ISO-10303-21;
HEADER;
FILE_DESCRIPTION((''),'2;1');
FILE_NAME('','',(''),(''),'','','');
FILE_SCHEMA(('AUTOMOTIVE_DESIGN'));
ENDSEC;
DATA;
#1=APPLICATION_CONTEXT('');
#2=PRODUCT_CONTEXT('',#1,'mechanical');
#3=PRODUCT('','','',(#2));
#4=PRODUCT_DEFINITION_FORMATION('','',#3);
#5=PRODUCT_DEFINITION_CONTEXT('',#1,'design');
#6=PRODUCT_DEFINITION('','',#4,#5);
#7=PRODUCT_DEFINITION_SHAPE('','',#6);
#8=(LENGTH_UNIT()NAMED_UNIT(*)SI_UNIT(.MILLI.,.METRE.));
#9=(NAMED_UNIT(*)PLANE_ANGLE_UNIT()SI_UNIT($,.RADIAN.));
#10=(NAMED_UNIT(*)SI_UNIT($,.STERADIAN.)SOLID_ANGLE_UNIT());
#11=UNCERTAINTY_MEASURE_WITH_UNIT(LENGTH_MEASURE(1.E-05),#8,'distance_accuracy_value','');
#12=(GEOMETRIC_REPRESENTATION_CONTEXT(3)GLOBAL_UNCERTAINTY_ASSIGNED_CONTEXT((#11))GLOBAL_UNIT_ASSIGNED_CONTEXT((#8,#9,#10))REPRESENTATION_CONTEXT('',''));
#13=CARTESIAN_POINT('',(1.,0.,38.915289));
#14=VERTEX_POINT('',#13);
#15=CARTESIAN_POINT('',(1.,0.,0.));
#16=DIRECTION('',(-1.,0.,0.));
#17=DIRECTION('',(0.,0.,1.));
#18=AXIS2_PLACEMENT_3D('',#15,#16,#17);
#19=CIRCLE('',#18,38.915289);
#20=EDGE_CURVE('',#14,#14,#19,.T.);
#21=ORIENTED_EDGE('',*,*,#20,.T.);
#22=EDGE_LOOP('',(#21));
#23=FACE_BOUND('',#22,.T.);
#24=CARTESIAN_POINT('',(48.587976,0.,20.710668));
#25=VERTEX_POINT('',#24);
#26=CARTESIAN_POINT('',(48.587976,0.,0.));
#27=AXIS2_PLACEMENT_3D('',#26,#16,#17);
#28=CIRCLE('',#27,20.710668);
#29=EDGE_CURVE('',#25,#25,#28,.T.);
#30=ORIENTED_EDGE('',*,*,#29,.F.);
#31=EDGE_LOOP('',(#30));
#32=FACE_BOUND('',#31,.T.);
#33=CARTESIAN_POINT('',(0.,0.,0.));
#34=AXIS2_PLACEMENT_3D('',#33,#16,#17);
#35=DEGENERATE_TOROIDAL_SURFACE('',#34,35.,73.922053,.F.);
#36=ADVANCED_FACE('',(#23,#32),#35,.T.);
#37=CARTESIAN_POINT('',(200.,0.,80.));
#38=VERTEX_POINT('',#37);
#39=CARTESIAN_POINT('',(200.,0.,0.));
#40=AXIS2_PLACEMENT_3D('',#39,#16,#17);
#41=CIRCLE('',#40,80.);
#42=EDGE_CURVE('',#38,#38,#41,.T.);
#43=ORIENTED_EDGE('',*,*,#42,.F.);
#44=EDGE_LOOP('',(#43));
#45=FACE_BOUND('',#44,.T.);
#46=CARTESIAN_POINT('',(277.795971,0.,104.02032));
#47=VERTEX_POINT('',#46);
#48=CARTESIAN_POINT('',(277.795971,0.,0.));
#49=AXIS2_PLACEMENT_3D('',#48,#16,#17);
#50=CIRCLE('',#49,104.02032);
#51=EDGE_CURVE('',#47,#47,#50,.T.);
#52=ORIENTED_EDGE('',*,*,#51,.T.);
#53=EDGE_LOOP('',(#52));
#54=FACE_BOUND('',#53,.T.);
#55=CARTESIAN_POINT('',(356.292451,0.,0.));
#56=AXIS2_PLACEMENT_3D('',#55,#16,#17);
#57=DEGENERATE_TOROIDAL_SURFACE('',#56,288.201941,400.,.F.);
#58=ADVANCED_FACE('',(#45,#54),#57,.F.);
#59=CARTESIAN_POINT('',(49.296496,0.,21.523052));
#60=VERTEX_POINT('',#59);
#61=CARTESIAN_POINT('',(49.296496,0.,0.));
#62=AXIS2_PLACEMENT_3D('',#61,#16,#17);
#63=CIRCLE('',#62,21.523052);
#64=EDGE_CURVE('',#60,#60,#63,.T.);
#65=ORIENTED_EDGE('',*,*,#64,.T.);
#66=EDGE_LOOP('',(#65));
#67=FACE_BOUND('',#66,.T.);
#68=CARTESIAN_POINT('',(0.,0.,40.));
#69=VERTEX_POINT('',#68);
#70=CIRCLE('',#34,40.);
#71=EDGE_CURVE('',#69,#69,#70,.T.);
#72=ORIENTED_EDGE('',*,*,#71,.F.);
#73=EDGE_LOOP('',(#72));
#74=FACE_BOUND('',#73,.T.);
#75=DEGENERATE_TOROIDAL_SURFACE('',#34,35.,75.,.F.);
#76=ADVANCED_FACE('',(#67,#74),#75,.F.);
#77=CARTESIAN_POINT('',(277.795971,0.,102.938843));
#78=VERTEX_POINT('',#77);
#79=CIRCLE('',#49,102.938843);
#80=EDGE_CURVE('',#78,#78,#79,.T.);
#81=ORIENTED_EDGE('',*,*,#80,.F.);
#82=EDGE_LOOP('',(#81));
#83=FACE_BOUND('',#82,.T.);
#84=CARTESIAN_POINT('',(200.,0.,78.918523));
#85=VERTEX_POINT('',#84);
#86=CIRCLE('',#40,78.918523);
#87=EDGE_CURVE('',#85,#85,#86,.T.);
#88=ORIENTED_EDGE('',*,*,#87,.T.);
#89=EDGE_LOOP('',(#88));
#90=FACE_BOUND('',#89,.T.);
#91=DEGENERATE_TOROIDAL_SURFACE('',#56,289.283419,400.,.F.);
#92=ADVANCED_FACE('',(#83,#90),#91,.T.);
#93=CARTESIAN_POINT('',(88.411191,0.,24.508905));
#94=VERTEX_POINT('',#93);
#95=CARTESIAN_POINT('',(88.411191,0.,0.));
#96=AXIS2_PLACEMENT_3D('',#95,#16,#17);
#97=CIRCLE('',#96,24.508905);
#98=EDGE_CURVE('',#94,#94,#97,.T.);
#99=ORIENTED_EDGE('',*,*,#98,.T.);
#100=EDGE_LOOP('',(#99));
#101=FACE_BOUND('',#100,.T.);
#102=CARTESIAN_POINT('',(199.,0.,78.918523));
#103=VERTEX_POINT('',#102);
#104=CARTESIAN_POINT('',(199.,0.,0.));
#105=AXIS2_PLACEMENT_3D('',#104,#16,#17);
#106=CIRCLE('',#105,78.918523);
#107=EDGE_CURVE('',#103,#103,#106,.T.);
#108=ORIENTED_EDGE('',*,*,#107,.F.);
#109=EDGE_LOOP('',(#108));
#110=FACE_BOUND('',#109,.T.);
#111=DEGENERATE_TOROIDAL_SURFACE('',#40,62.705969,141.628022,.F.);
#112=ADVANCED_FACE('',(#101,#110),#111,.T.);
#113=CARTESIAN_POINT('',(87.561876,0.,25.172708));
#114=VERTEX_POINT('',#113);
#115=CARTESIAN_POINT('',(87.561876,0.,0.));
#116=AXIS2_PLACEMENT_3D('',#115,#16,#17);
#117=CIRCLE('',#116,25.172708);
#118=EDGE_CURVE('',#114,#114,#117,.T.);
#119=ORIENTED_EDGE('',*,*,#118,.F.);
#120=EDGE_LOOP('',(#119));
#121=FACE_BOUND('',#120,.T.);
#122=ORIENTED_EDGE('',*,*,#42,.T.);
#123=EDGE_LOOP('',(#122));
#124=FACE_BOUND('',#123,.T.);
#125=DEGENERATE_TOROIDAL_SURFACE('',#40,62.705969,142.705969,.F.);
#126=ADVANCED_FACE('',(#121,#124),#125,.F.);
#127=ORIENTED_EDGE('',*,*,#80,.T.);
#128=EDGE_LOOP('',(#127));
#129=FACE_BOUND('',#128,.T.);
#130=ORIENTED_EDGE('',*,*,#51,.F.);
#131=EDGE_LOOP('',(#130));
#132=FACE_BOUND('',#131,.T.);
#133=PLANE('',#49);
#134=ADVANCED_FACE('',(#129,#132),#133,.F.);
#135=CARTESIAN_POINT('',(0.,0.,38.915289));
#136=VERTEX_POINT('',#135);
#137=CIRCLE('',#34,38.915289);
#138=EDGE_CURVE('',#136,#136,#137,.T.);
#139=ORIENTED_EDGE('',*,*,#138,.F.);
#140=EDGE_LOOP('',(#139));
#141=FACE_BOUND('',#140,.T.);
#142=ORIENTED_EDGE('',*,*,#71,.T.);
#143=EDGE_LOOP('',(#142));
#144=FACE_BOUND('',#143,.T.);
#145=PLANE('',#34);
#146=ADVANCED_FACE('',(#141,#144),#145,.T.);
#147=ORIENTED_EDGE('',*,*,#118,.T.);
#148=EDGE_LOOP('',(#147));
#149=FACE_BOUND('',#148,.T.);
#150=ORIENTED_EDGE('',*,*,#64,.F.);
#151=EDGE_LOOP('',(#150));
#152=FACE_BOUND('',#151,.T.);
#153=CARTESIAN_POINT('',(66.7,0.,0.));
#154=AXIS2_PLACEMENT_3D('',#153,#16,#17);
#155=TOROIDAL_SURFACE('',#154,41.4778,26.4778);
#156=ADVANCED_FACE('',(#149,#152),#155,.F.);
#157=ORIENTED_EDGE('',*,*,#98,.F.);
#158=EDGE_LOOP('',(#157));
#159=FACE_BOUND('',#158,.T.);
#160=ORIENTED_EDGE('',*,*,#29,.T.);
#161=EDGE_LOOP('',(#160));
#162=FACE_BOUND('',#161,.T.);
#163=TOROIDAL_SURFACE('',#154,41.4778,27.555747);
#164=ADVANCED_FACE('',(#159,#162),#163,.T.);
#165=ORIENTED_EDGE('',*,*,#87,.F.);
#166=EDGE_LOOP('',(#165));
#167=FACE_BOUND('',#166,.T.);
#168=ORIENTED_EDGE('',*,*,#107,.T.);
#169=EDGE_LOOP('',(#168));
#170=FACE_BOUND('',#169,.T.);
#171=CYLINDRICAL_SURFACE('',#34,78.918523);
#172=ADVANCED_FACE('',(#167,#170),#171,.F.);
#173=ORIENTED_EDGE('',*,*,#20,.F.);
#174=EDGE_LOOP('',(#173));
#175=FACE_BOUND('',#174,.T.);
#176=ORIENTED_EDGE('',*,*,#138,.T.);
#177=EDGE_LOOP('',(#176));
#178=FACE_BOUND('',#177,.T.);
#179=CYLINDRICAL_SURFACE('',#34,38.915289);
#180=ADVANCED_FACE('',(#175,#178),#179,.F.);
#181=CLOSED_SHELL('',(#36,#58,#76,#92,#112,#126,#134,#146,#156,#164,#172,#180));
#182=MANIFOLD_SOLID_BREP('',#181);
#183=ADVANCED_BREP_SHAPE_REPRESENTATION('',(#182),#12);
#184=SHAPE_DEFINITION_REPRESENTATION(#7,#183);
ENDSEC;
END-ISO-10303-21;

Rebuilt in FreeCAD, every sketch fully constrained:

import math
import FreeCAD as App
import Part
import Sketcher

V = App.Vector

doc = App.newDocument("Part")
body = doc.addObject("PartDesign::Body", "Body")

sketch1 = doc.addObject("Sketcher::SketchObject", "Sketch")
body.addObject(sketch1)
sketch1.AttachmentSupport = (doc.XY_Plane, [""])
sketch1.MapMode = "FlatFace"
sketch1.addGeometry(Part.LineSegment(V(199, 78.918523, 0), V(200, 78.918523, 0)), False)
sketch1.addGeometry(Part.ArcOfCircle(Part.Circle(V(356.292451, -289.283419, 0), V(0, 0, 1), 400), math.radians(101.31724), math.radians(113)), False)
sketch1.addGeometry(Part.LineSegment(V(277.795971, 102.938843, 0), V(277.795971, 104.02032, 0)), False)
sketch1.addGeometry(Part.ArcOfCircle(Part.Circle(V(356.292451, -288.201941, 0), V(0, 0, 1), 400), math.radians(101.31724), math.radians(113)), False)
sketch1.addGeometry(Part.ArcOfCircle(Part.Circle(V(200, -62.705969, 0), V(0, 0, 1), 142.705969), math.radians(90), math.radians(141.989754)), False)
sketch1.addGeometry(Part.ArcOfCircle(Part.Circle(V(66.7, 41.4778, 0), V(0, 0, 1), 26.4778), math.radians(-131.093262), math.radians(-38.010246)), False)
sketch1.addGeometry(Part.ArcOfCircle(Part.Circle(V(0, -35, 0), V(0, 0, 1), 75), math.radians(48.906738), math.radians(90)), False)
sketch1.addGeometry(Part.LineSegment(V(0, 40, 0), V(0, 38.915289, 0)), False)
sketch1.addGeometry(Part.LineSegment(V(0, 38.915289, 0), V(1, 38.915289, 0)), False)
sketch1.addGeometry(Part.ArcOfCircle(Part.Circle(V(0, -35, 0), V(0, 0, 1), 73.922053), math.radians(48.906738), math.radians(89.224893)), False)
sketch1.addGeometry(Part.ArcOfCircle(Part.Circle(V(66.7, 41.4778, 0), V(0, 0, 1), 27.555747), math.radians(-131.093262), math.radians(-38.010246)), False)
sketch1.addGeometry(Part.ArcOfCircle(Part.Circle(V(200, -62.705969, 0), V(0, 0, 1), 141.628022), math.radians(90.404555), math.radians(141.989754)), False)
sketch1.addConstraint(Sketcher.Constraint("Coincident", 0, 2, 1, 2))
sketch1.addConstraint(Sketcher.Constraint("Coincident", 1, 1, 2, 1))
sketch1.addConstraint(Sketcher.Constraint("Coincident", 2, 2, 3, 1))
sketch1.addConstraint(Sketcher.Constraint("Coincident", 3, 2, 4, 1))
sketch1.addConstraint(Sketcher.Constraint("Tangent", 4, 2, 5, 2))
sketch1.addConstraint(Sketcher.Constraint("Tangent", 5, 1, 6, 1))
sketch1.addConstraint(Sketcher.Constraint("Coincident", 6, 2, 7, 1))
sketch1.addConstraint(Sketcher.Constraint("Coincident", 7, 2, 8, 1))
sketch1.addConstraint(Sketcher.Constraint("Coincident", 8, 2, 9, 2))
sketch1.addConstraint(Sketcher.Constraint("Tangent", 9, 1, 10, 1))
sketch1.addConstraint(Sketcher.Constraint("Tangent", 10, 2, 11, 2))
sketch1.addConstraint(Sketcher.Constraint("Coincident", 11, 1, 0, 1))
sketch1.addConstraint(Sketcher.Constraint("Horizontal", 0))
sketch1.addConstraint(Sketcher.Constraint("Vertical", 2))
sketch1.addConstraint(Sketcher.Constraint("Vertical", 7))
sketch1.addConstraint(Sketcher.Constraint("Horizontal", 8))
sketch1.addConstraint(Sketcher.Constraint("Coincident", 9, 3, 6, 3))
sketch1.addConstraint(Sketcher.Constraint("Coincident", 10, 3, 5, 3))
sketch1.addConstraint(Sketcher.Constraint("Coincident", 11, 3, 4, 3))
sketch1.addConstraint(Sketcher.Constraint("Equal", 1, 3))
sketch1.addConstraint(Sketcher.Constraint("PointOnObject", 6, 3, -2))
sketch1.addConstraint(Sketcher.Constraint("PointOnObject", 6, 2, -2))
sketch1.addConstraint(Sketcher.Constraint("Vertical", 1, 3, 3, 3))
sketch1.addConstraint(Sketcher.Constraint("Vertical", 11, 3, 0, 2))
sketch1.addConstraint(Sketcher.Constraint("Vertical", 0, 2, 3, 2))
sketch1.addConstraint(Sketcher.Constraint("Equal", 0, 8))
sketch1.addConstraint(Sketcher.Constraint("Radius", 1, 400.0))
sketch1.addConstraint(Sketcher.Constraint("Radius", 6, 75.0))
sketch1.addConstraint(Sketcher.Constraint("DistanceX", 0, 1, 0, 2, 1.0))
sketch1.addConstraint(Sketcher.Constraint("DistanceX", -1, 1, 4, 3, 200.0))
sketch1.addConstraint(Sketcher.Constraint("DistanceY", 6, 3, -1, 1, 35.0))
sketch1.addConstraint(Sketcher.Constraint("DistanceY", -1, 1, 3, 2, 80.0))
sketch1.addConstraint(Sketcher.Constraint("DistanceX", -1, 1, 5, 3, 66.7))
sketch1.addConstraint(Sketcher.Constraint("Radius", 5, 26.4778))
sketch1.addConstraint(Sketcher.Constraint("Radius", 9, 73.922053))
sketch1.addConstraint(Sketcher.Constraint("DistanceX", -1, 1, 1, 3, 356.292451))
sketch1.addConstraint(Sketcher.Constraint("DistanceX", -1, 1, 2, 2, 277.795971))
revolution = doc.addObject("PartDesign::Revolution", "Revolution")
body.addObject(revolution)
revolution.Profile = sketch1
revolution.ReferenceAxis = (sketch1, ["H_Axis"])
revolution.Angle = 360

doc.recompute()
